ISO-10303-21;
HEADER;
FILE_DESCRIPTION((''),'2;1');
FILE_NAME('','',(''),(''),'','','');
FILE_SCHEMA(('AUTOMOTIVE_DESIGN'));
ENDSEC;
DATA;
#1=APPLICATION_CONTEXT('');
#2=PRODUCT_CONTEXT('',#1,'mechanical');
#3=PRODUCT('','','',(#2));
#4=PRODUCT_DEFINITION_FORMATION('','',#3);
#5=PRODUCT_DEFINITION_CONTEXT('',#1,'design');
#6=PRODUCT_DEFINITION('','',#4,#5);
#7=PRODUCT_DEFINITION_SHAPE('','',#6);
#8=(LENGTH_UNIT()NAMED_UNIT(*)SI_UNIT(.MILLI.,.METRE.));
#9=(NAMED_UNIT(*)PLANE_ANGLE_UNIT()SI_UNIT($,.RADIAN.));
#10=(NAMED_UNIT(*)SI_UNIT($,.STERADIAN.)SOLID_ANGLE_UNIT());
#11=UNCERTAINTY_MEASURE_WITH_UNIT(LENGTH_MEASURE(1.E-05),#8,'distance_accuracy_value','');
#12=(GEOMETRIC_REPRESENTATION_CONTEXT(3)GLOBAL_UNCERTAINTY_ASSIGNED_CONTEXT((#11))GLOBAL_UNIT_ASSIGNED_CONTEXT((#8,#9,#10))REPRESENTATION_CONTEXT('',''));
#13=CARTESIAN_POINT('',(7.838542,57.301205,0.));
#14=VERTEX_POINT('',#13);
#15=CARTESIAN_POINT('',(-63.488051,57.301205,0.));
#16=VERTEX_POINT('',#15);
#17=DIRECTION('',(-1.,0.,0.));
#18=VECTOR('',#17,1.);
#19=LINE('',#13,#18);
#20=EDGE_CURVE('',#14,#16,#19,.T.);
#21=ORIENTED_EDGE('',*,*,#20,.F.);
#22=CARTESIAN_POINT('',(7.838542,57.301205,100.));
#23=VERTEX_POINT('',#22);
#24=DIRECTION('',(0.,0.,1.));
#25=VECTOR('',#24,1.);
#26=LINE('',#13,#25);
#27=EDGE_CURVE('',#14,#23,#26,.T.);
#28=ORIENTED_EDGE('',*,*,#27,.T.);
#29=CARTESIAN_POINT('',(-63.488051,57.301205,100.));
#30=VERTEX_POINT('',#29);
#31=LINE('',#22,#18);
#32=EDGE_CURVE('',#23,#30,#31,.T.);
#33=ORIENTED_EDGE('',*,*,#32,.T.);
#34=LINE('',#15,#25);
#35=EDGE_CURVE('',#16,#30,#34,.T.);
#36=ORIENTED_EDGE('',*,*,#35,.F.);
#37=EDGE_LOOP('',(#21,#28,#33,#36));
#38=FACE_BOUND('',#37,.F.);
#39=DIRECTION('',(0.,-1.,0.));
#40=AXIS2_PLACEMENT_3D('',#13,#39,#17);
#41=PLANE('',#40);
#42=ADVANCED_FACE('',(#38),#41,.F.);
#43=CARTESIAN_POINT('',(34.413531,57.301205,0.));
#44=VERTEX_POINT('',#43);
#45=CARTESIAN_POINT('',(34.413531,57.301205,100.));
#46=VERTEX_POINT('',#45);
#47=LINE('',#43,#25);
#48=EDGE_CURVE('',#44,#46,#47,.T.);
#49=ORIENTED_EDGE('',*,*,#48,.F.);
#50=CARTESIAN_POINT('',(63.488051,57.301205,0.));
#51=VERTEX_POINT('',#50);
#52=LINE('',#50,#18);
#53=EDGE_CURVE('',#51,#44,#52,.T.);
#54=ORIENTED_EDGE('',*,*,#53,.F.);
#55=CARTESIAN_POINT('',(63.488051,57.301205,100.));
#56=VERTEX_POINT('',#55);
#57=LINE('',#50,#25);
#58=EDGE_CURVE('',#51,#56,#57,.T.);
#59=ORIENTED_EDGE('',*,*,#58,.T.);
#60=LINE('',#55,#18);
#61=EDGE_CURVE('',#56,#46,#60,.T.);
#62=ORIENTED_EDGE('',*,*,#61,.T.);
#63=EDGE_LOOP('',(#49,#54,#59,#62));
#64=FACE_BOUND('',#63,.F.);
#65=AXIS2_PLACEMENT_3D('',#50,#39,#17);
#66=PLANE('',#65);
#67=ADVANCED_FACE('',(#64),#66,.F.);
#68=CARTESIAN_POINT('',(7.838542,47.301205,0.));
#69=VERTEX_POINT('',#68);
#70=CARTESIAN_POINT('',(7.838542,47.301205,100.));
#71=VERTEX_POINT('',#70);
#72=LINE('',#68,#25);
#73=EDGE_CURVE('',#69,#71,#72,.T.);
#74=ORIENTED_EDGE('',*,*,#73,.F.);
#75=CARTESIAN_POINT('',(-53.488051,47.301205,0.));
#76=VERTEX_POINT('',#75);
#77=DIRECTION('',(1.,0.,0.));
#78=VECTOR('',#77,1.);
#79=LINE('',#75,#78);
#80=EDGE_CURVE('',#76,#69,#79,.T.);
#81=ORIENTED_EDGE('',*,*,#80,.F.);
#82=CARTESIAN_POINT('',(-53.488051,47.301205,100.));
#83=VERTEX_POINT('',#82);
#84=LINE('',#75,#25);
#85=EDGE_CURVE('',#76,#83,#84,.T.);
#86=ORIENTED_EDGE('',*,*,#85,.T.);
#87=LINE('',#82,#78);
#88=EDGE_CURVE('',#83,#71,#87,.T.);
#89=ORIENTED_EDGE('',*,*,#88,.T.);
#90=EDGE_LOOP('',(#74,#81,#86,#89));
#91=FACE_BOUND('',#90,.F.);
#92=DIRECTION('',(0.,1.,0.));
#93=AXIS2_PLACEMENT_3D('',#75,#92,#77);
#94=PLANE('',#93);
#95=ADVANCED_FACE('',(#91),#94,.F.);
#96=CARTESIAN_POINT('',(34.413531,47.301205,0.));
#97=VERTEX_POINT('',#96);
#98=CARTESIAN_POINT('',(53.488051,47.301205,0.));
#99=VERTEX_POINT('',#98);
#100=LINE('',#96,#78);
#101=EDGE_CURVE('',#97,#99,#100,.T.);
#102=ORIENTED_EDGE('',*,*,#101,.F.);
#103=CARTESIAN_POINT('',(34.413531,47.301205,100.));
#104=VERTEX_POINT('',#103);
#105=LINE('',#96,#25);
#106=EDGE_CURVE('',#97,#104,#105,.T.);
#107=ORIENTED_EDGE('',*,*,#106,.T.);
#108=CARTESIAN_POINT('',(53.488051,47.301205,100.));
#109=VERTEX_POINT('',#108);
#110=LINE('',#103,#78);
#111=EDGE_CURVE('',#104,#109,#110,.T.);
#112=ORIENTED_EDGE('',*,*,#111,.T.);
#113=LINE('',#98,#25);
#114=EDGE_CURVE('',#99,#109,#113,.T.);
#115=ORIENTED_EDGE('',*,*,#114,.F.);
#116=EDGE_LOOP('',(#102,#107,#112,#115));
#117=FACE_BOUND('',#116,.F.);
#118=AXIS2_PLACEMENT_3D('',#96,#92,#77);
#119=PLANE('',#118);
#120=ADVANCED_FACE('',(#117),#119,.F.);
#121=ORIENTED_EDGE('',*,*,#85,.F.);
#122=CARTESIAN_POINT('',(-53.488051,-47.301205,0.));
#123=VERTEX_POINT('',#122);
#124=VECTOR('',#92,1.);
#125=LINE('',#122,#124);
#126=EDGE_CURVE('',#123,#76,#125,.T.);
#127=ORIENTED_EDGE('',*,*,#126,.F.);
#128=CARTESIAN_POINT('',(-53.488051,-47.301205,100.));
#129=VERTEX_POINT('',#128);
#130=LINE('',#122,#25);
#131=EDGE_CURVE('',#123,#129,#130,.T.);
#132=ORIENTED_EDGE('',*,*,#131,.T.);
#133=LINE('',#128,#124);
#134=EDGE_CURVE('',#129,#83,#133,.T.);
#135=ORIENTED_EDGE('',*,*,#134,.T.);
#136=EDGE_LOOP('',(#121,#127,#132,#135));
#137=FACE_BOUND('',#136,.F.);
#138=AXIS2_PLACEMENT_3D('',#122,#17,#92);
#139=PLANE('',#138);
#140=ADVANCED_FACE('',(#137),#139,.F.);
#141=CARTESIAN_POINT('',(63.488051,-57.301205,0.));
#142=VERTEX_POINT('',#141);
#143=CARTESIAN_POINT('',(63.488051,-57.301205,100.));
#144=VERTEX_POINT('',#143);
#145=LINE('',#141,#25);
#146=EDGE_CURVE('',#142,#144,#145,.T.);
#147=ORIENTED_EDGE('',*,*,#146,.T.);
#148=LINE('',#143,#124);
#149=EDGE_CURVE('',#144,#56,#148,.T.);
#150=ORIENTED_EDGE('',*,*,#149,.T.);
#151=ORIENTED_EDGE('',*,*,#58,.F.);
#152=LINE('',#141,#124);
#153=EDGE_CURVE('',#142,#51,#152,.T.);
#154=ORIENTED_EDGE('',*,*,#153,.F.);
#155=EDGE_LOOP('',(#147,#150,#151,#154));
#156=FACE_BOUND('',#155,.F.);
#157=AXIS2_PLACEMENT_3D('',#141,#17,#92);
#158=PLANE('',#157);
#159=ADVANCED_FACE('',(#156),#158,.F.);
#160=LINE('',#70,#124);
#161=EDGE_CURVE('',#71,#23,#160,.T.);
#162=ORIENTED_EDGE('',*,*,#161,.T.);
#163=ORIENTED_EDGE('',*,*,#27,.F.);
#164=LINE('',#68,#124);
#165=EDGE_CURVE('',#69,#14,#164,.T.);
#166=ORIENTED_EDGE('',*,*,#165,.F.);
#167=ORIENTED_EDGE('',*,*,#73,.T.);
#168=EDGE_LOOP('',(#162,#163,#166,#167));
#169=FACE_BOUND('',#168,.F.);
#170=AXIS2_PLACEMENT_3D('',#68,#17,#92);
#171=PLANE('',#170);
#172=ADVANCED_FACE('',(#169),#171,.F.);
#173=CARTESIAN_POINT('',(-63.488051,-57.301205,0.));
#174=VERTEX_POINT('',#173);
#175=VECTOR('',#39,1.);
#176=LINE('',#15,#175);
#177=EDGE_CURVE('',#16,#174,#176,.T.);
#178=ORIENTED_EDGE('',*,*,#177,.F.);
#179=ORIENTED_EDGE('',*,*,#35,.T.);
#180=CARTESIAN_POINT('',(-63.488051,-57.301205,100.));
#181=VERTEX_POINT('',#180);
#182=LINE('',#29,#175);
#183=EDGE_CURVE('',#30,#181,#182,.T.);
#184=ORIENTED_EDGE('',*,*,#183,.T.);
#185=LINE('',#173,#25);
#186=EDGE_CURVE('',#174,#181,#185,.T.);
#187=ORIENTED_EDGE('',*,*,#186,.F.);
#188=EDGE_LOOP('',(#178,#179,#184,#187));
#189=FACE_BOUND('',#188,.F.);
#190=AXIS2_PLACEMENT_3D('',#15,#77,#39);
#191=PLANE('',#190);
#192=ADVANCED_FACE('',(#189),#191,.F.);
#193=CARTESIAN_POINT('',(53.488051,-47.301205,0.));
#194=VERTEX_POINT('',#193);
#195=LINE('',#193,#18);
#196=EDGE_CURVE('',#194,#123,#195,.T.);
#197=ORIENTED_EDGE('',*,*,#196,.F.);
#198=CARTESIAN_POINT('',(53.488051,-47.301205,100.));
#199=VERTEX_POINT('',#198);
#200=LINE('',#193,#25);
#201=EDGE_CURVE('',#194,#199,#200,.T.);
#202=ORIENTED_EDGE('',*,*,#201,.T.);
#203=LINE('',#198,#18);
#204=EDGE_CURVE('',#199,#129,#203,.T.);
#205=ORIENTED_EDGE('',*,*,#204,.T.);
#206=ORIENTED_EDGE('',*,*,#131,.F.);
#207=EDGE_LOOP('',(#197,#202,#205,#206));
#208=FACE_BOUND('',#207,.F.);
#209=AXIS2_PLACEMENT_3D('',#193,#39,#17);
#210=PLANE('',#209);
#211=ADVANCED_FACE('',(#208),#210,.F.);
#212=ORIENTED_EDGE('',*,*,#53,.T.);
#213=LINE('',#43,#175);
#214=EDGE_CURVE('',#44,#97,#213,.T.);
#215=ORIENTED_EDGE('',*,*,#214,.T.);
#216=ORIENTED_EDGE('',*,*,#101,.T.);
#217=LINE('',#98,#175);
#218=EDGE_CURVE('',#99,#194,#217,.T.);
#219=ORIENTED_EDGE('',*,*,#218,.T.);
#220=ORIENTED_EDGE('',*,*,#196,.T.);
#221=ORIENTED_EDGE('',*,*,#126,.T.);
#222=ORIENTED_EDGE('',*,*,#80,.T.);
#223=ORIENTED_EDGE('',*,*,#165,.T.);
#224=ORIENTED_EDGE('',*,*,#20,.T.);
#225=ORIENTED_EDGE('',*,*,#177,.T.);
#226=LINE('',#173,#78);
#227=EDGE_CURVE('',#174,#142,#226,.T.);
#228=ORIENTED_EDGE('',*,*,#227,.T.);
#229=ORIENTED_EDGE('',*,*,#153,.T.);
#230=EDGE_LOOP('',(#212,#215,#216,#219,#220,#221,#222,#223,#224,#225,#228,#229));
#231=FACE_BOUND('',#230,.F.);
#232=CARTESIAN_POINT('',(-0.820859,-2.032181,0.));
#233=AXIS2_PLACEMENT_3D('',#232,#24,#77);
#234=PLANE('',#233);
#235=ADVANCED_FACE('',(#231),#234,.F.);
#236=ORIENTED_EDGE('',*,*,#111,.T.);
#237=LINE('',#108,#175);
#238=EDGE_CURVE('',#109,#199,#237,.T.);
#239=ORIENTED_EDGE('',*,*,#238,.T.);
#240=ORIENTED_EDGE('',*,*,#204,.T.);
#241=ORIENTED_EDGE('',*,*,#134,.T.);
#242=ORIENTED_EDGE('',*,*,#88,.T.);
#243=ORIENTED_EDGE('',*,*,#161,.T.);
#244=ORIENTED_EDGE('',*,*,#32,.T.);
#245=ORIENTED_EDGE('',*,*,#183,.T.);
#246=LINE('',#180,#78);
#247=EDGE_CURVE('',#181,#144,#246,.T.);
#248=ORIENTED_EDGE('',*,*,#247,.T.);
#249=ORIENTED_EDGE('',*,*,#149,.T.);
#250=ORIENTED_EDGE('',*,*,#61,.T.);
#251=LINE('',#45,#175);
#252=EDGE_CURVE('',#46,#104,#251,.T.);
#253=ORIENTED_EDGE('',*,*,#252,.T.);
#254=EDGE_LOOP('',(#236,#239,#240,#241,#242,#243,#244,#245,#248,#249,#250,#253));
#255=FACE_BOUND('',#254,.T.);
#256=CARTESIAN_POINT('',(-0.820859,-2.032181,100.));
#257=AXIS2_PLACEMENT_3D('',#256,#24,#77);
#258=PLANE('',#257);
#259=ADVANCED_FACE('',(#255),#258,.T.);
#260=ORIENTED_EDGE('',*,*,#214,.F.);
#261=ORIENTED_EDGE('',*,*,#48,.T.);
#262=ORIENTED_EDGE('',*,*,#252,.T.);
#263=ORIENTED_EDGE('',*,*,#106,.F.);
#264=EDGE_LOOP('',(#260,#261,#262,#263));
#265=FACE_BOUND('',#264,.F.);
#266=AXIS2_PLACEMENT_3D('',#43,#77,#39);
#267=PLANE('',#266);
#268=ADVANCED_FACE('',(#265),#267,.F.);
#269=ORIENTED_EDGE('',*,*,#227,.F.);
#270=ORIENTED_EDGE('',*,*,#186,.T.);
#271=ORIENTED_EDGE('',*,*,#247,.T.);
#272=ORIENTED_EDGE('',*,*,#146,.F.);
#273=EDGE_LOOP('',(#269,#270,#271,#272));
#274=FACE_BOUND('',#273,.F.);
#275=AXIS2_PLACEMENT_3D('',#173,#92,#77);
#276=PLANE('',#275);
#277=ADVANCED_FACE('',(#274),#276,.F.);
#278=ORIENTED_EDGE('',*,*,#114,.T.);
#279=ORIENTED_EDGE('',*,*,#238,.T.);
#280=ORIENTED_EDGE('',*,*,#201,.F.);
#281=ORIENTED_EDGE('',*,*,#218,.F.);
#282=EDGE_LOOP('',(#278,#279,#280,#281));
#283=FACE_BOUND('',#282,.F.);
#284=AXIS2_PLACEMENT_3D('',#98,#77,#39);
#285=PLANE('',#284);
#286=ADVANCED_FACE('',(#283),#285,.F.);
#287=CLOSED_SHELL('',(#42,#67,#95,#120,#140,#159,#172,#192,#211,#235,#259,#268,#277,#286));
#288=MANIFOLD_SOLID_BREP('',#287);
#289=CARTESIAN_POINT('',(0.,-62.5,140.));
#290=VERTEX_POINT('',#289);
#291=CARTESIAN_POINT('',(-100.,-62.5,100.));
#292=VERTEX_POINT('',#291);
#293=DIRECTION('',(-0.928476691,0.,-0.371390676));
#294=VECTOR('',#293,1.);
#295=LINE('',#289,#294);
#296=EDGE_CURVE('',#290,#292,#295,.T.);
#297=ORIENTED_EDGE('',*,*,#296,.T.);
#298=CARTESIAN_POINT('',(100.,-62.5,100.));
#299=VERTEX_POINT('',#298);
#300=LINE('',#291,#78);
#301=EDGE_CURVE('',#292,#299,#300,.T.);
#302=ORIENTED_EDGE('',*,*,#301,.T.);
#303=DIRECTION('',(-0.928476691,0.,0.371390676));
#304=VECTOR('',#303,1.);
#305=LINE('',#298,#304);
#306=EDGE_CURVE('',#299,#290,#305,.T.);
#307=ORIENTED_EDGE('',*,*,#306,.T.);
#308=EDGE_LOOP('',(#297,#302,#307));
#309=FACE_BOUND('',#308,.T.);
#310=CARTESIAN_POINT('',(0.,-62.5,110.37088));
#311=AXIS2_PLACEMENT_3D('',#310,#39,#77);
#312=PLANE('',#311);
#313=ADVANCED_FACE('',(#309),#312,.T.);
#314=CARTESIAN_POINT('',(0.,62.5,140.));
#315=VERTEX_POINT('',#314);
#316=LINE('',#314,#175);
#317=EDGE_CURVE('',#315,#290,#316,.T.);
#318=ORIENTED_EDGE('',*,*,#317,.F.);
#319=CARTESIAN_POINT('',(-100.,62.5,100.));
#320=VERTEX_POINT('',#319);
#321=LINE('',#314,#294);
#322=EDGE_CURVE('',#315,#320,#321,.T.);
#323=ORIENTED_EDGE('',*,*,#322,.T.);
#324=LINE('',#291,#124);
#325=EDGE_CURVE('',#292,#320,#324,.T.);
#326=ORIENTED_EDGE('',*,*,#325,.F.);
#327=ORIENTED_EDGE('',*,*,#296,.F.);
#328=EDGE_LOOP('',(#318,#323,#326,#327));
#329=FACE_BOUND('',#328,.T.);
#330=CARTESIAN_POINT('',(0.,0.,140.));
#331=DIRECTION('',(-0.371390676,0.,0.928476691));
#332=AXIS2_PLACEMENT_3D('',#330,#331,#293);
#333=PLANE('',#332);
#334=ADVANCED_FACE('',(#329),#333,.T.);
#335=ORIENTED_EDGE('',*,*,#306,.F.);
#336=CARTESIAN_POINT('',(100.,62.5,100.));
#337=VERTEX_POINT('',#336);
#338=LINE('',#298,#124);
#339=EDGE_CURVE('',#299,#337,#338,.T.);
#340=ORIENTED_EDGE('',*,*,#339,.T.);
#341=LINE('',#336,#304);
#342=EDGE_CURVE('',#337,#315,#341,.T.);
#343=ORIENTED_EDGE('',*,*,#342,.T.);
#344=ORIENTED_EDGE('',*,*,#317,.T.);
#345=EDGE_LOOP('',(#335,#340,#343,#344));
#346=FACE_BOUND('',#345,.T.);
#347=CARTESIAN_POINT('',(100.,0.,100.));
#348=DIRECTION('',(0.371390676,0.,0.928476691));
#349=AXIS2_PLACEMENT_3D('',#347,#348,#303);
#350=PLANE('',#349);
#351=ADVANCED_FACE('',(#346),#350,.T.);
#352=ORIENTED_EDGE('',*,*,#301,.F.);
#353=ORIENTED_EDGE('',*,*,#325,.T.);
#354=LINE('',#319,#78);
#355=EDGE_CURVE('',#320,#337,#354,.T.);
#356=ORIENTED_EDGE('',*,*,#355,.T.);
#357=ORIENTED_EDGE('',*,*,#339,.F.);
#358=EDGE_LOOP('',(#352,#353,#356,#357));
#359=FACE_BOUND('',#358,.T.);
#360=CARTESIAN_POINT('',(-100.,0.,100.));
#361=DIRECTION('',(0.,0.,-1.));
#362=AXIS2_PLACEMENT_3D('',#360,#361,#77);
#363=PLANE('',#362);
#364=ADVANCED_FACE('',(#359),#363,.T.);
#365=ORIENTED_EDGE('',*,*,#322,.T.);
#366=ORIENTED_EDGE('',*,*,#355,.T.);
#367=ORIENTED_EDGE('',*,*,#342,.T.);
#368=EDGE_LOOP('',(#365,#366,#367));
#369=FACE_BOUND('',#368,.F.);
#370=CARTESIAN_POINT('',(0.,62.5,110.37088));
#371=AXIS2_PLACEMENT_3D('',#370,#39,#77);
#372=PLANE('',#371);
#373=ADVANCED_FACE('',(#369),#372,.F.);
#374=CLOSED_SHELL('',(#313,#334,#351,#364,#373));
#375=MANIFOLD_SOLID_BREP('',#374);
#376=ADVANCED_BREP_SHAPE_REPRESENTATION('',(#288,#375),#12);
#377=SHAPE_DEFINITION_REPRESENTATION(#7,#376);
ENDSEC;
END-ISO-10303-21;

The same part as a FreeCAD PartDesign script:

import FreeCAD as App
import Part
import Sketcher
Q = App.Units.Quantity


def add_polygon(sketch, points):
    """Adds a closed chain of lines whose ends are joined by coincident constraints."""
    first, n = sketch.GeometryCount, len(points)
    for a, b in zip(points, points[1:] + points[:1]):
        sketch.addGeometry(Part.LineSegment(App.Vector(*a, 0), App.Vector(*b, 0)), False)
    for i in range(n):
        sketch.addConstraint(Sketcher.Constraint("Coincident", first + i, 2, first + (i + 1) % n, 1))

doc = App.newDocument("Part")
params = doc.addObject("Spreadsheet::Sheet", "Params")
for row, (alias, value) in enumerate([
    ("sketch1_height", "10 mm"),
    ("pad1_length", "100 mm"),
    ("sketch2_width", "200 mm"),
    ("pad2_length", "125 mm"),
], start=1):
    params.set(f"A{row}", alias)
    params.set(f"B{row}", "=" + value)
    params.setAlias(f"B{row}", alias)

body = doc.addObject("PartDesign::Body", "Body")

sketch1 = doc.addObject("Sketcher::SketchObject", "Sketch")
body.addObject(sketch1)
sketch1.AttachmentSupport = (doc.XY_Plane, [""])
sketch1.MapMode = "FlatFace"
add_polygon(sketch1, [(53, 47), (53, -47), (-53, -47), (-53, 47), (8, 47), (8, 57), (-63, 57), (-63, -57), (63, -57), (63, 57), (34, 57), (34, 47)])
sketch1.addConstraint(Sketcher.Constraint("Vertical", 0))
sketch1.addConstraint(Sketcher.Constraint("Horizontal", 1))
sketch1.addConstraint(Sketcher.Constraint("Vertical", 2))
sketch1.addConstraint(Sketcher.Constraint("Horizontal", 3))
sketch1.addConstraint(Sketcher.Constraint("Vertical", 4))
sketch1.addConstraint(Sketcher.Constraint("Horizontal", 5))
sketch1.addConstraint(Sketcher.Constraint("Vertical", 6))
sketch1.addConstraint(Sketcher.Constraint("Horizontal", 7))
sketch1.addConstraint(Sketcher.Constraint("Vertical", 8))
sketch1.addConstraint(Sketcher.Constraint("Horizontal", 9))
sketch1.addConstraint(Sketcher.Constraint("Vertical", 10))
sketch1.addConstraint(Sketcher.Constraint("Horizontal", 11))
sketch1.addConstraint(Sketcher.Constraint("Symmetric", 0, 2, 2, 2, -1, 1))
sketch1.addConstraint(Sketcher.Constraint("Symmetric", 5, 2, 7, 2, -1, 1))
sketch1.addConstraint(Sketcher.Constraint("Horizontal", 5, 2, 8, 2))
sketch1.addConstraint(Sketcher.Constraint("Horizontal", 3, 2, 10, 2))
sketch1.addConstraint(Sketcher.Constraint("DistanceY", 4, 1, 4, 2, Q("10 mm")))
sketch1.addConstraint(Sketcher.Constraint("DistanceX", 5, 2, 2, 2, Q("10 mm")))
sketch1.addConstraint(Sketcher.Constraint("DistanceX", 1, 2, 1, 1, Q("106.976102 mm")))
sketch1.addConstraint(Sketcher.Constraint("DistanceX", 9, 2, 9, 1, Q("29.07452 mm")))
sketch1.addConstraint(Sketcher.Constraint("DistanceY", 0, 2, 0, 1, Q("94.60241 mm")))
sketch1.addConstraint(Sketcher.Constraint("DistanceX", 3, 1, 3, 2, Q("61.326593 mm")))
sketch1.setExpression("Constraints[28]", "Params.sketch1_height")
pad1 = doc.addObject("PartDesign::Pad", "Pad")
body.addObject(pad1)
pad1.Profile = sketch1
pad1.setExpression("Length", "Params.pad1_length")
body2 = doc.addObject("PartDesign::Body", "Body001")

sketch2 = doc.addObject("Sketcher::SketchObject", "Sketch001")
body2.addObject(sketch2)
sketch2.AttachmentSupport = (doc.getObject("XZ_Plane001"), [""])
sketch2.MapMode = "FlatFace"
add_polygon(sketch2, [(100, 100), (0, 140), (-100, 100)])
sketch2.addConstraint(Sketcher.Constraint("Horizontal", 2))
sketch2.addConstraint(Sketcher.Constraint("PointOnObject", 0, 2, -2))
sketch2.addConstraint(Sketcher.Constraint("Equal", 0, 1))
sketch2.addConstraint(Sketcher.Constraint("DistanceX", 2, 1, 2, 2, Q("200 mm")))
sketch2.addConstraint(Sketcher.Constraint("DistanceY", -1, 1, 0, 2, Q("140 mm")))
sketch2.addConstraint(Sketcher.Constraint("DistanceY", -1, 1, 1, 2, Q("100 mm")))
sketch2.setExpression("Constraints[6]", "Params.sketch2_width")
pad2 = doc.addObject("PartDesign::Pad", "Pad001")
body2.addObject(pad2)
pad2.Profile = sketch2
pad2.setExpression("Length", "Params.pad2_length")
pad2.Midplane = True

doc.recompute()
